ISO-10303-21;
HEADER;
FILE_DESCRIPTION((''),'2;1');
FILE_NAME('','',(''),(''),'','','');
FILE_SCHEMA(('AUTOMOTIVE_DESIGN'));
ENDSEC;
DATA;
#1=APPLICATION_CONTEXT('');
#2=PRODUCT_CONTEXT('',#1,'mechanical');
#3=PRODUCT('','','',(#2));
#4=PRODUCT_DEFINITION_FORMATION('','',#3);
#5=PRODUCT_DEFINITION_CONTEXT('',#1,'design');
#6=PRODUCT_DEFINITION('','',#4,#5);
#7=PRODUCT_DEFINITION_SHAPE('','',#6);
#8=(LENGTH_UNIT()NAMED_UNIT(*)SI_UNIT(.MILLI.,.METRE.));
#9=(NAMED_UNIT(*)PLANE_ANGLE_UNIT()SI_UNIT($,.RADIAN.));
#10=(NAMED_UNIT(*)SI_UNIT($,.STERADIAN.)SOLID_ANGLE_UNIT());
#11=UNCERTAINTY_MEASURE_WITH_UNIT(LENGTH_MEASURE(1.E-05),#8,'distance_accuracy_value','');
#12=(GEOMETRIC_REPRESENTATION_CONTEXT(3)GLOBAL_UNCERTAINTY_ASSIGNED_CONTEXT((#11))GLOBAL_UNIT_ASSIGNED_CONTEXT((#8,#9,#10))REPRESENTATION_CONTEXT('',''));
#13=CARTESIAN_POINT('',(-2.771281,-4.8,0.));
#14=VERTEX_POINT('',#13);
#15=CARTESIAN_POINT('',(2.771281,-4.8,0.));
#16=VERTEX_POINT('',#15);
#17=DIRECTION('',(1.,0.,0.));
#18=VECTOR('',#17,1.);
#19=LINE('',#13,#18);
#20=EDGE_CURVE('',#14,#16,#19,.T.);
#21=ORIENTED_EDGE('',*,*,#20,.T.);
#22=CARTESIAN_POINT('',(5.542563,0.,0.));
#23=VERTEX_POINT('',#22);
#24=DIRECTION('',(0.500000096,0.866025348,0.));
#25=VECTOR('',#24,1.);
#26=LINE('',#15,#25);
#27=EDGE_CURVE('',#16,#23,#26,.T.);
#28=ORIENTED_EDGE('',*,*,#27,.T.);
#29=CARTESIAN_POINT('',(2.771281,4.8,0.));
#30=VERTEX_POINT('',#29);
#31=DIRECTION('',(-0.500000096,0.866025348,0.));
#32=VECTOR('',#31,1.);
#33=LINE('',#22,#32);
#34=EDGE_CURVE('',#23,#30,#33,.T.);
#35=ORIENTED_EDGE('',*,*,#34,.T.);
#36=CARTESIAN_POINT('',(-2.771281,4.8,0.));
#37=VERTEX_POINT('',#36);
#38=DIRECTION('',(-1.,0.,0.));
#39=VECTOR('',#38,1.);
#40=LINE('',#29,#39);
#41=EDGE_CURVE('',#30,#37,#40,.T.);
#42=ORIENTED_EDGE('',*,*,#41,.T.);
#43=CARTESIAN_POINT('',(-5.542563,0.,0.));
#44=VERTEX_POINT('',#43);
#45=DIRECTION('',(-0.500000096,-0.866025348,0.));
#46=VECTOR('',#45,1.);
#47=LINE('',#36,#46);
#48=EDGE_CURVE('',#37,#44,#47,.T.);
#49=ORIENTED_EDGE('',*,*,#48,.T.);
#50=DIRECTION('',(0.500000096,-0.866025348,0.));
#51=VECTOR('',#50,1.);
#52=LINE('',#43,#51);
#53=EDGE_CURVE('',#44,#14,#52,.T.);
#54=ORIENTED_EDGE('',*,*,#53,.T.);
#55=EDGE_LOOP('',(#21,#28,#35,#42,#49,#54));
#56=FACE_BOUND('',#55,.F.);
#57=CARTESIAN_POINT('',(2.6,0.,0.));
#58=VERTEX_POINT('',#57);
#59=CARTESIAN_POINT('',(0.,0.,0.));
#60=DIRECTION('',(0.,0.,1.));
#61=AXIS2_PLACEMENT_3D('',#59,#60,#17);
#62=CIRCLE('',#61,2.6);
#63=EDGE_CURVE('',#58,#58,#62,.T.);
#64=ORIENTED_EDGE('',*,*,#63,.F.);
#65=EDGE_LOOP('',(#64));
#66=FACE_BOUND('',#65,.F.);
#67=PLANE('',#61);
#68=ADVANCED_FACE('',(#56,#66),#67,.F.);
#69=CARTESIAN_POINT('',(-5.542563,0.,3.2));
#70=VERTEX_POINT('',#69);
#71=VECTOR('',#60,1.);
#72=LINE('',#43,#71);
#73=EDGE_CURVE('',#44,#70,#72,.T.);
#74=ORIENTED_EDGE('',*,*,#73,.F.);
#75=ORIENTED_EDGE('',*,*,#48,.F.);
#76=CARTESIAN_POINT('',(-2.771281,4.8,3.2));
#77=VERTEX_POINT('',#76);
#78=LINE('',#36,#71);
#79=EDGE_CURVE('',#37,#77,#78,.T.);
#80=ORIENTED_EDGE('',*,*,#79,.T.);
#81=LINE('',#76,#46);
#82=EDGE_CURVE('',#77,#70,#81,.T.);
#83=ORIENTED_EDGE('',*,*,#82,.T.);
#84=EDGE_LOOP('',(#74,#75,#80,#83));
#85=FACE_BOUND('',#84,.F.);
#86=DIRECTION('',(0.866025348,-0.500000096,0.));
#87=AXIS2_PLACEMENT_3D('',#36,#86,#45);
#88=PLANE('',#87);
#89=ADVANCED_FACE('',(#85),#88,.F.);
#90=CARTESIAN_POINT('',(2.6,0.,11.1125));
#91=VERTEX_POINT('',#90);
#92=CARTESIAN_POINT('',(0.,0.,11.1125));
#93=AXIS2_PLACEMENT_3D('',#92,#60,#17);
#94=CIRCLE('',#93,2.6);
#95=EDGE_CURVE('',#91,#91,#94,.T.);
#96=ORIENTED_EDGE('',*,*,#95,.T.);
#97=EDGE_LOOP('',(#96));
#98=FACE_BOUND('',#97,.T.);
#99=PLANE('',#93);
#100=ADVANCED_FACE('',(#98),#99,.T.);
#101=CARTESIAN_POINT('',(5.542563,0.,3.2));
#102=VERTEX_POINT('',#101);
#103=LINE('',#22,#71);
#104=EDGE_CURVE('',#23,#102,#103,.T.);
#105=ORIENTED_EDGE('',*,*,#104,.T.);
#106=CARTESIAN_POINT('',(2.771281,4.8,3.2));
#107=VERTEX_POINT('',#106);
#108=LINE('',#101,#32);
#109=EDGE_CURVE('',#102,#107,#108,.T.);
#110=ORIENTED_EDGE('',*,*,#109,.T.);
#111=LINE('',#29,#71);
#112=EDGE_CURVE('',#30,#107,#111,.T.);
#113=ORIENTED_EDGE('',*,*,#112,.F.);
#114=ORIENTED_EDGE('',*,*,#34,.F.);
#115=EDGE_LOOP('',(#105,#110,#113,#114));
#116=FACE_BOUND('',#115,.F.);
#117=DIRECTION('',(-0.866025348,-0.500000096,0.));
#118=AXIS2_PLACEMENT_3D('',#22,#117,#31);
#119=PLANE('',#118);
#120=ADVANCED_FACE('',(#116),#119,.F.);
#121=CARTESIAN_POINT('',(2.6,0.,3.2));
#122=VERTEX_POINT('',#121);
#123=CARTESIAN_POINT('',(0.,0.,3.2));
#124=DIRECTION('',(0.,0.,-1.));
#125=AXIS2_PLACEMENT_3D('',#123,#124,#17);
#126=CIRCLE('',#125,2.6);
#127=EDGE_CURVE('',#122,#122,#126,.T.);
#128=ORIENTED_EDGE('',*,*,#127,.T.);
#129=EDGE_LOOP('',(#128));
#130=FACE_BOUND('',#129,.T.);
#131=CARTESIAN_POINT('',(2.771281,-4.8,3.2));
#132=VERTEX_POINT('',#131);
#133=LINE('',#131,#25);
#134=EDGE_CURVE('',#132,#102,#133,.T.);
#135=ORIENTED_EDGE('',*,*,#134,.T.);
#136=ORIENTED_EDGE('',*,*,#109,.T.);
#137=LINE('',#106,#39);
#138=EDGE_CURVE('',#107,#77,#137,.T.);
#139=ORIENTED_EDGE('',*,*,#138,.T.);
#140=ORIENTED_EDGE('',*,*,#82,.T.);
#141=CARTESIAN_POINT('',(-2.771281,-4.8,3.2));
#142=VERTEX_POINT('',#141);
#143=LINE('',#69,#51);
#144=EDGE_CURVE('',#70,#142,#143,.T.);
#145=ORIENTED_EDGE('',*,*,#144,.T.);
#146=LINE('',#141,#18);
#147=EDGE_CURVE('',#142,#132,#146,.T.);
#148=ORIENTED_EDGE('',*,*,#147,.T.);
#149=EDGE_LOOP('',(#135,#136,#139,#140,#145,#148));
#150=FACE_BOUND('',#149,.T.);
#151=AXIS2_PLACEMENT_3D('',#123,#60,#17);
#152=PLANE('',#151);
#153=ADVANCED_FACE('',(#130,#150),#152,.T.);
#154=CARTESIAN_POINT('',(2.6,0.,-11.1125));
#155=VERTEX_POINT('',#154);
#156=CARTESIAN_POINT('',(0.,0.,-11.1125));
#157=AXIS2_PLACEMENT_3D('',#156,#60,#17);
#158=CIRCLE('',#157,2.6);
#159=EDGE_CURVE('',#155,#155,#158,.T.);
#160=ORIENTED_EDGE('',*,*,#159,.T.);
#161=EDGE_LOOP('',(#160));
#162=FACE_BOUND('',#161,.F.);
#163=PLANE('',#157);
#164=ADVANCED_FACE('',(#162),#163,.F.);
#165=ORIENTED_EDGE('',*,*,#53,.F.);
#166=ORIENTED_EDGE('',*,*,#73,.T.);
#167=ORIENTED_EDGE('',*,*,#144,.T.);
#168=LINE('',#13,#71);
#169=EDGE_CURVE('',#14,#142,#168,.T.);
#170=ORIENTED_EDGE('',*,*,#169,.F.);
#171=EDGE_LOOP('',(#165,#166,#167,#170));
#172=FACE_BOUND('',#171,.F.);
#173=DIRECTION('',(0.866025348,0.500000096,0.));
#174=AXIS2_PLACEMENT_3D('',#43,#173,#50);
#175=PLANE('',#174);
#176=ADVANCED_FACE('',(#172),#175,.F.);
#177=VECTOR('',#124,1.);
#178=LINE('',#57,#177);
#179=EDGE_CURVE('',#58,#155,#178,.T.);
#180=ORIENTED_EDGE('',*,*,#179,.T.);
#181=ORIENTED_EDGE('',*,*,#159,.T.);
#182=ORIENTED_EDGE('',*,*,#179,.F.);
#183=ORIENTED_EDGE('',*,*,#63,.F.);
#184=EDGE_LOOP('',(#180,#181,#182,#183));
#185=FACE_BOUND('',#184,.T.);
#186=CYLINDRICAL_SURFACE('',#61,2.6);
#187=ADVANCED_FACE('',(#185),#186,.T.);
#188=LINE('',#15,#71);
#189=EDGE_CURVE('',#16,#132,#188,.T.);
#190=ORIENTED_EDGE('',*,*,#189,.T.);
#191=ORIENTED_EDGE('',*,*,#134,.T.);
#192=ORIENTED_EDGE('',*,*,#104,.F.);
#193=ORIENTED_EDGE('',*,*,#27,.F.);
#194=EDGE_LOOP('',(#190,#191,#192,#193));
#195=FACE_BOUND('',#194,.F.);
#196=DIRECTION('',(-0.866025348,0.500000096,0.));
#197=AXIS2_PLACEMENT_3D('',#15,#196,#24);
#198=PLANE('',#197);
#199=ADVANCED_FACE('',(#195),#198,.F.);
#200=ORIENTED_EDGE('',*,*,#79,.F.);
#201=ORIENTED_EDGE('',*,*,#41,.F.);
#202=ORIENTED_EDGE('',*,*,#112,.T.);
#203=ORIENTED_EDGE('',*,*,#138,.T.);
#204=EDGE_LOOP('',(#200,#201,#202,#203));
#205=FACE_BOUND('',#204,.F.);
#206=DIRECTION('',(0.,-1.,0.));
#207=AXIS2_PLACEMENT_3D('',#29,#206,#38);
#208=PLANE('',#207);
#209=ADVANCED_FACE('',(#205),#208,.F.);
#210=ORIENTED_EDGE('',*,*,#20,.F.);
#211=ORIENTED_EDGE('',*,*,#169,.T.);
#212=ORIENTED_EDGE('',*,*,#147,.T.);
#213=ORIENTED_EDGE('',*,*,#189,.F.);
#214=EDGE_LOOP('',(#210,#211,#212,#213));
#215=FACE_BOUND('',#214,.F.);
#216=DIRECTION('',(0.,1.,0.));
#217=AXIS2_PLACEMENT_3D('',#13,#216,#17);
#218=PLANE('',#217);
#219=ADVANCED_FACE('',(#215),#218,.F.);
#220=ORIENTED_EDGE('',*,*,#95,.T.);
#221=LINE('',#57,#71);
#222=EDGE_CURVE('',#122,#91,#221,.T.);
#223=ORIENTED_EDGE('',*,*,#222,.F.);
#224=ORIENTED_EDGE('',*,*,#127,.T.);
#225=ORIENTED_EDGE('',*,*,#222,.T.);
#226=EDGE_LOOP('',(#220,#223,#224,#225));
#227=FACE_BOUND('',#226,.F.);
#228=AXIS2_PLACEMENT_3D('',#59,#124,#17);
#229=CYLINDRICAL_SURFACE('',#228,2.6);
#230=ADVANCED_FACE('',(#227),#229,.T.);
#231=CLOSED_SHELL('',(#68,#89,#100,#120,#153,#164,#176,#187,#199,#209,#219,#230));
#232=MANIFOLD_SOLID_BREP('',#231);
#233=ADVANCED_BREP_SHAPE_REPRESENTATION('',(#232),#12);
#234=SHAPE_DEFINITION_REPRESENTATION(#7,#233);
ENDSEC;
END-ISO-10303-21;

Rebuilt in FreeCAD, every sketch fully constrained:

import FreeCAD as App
import Part
import Sketcher
Q = App.Units.Quantity

doc = App.newDocument("Part")
body = doc.addObject("PartDesign::Body", "Body")

sketch1 = body.newObject("Sketcher::SketchObject", "Sketch")
sketch1.AttachmentSupport = (doc.getObject("XY_Plane"), [""])
sketch1.MapMode = "FlatFace"
sketch1.addGeometry([
    Part.LineSegment(App.Vector(3, 5, 0), App.Vector(-3, 5, 0)),
    Part.LineSegment(App.Vector(-3, 5, 0), App.Vector(-6, 0, 0)),
    Part.LineSegment(App.Vector(-6, 0, 0), App.Vector(-3, -5, 0)),
    Part.LineSegment(App.Vector(-3, -5, 0), App.Vector(3, -5, 0)),
    Part.LineSegment(App.Vector(3, -5, 0), App.Vector(6, 0, 0)),
    Part.LineSegment(App.Vector(6, 0, 0), App.Vector(3, 5, 0)),
], False)
sketch1.addConstraint([
    Sketcher.Constraint("Coincident", 0, 2, 1, 1),
    Sketcher.Constraint("Coincident", 1, 2, 2, 1),
    Sketcher.Constraint("Coincident", 2, 2, 3, 1),
    Sketcher.Constraint("Coincident", 3, 2, 4, 1),
    Sketcher.Constraint("Coincident", 4, 2, 5, 1),
    Sketcher.Constraint("Coincident", 5, 2, 0, 1),
    Sketcher.Constraint("Horizontal", 0),
    Sketcher.Constraint("Horizontal", 3),
    Sketcher.Constraint("Symmetric", 0, 2, 3, 2, -1, 1),
    Sketcher.Constraint("Symmetric", 1, 2, 4, 2, -1, 1),
    Sketcher.Constraint("PointOnObject", 1, 2, -1),
    Sketcher.Constraint("Parallel", 2, 5),
    Sketcher.Constraint("Vertical", 0, 2, 2, 2),
    Sketcher.Constraint("Angle", 1, Q("-120.000006 deg")),
    Sketcher.Constraint("DistanceY", -1, 1, 0, 2, Q("4.8 mm")),
    Sketcher.Constraint("DistanceX", 0, 2, 0, 1, Q("5.542562 mm")),
])
pad1 = body.newObject("PartDesign::Pad", "Pad")
pad1.Profile = sketch1
pad1.Length = 3.2

sketch2 = body.newObject("Sketcher::SketchObject", "Sketch001")
sketch2.AttachmentSupport = (doc.getObject("XY_Plane"), [""])
sketch2.MapMode = "FlatFace"
sketch2.addGeometry(Part.Circle(App.Vector(0, 0, 0), App.Vector(0, 0, 1), 2.6), False)
sketch2.addConstraint([
    Sketcher.Constraint("Coincident", 0, 3, -1, 1),
    Sketcher.Constraint("Diameter", 0, Q("5.2 mm")),
])
pad2 = body.newObject("PartDesign::Pad", "Pad001")
pad2.Profile = sketch2
pad2.Type = "TwoLengths"
pad2.Length = 11.1125
pad2.Length2 = 11.1125

doc.recompute()
